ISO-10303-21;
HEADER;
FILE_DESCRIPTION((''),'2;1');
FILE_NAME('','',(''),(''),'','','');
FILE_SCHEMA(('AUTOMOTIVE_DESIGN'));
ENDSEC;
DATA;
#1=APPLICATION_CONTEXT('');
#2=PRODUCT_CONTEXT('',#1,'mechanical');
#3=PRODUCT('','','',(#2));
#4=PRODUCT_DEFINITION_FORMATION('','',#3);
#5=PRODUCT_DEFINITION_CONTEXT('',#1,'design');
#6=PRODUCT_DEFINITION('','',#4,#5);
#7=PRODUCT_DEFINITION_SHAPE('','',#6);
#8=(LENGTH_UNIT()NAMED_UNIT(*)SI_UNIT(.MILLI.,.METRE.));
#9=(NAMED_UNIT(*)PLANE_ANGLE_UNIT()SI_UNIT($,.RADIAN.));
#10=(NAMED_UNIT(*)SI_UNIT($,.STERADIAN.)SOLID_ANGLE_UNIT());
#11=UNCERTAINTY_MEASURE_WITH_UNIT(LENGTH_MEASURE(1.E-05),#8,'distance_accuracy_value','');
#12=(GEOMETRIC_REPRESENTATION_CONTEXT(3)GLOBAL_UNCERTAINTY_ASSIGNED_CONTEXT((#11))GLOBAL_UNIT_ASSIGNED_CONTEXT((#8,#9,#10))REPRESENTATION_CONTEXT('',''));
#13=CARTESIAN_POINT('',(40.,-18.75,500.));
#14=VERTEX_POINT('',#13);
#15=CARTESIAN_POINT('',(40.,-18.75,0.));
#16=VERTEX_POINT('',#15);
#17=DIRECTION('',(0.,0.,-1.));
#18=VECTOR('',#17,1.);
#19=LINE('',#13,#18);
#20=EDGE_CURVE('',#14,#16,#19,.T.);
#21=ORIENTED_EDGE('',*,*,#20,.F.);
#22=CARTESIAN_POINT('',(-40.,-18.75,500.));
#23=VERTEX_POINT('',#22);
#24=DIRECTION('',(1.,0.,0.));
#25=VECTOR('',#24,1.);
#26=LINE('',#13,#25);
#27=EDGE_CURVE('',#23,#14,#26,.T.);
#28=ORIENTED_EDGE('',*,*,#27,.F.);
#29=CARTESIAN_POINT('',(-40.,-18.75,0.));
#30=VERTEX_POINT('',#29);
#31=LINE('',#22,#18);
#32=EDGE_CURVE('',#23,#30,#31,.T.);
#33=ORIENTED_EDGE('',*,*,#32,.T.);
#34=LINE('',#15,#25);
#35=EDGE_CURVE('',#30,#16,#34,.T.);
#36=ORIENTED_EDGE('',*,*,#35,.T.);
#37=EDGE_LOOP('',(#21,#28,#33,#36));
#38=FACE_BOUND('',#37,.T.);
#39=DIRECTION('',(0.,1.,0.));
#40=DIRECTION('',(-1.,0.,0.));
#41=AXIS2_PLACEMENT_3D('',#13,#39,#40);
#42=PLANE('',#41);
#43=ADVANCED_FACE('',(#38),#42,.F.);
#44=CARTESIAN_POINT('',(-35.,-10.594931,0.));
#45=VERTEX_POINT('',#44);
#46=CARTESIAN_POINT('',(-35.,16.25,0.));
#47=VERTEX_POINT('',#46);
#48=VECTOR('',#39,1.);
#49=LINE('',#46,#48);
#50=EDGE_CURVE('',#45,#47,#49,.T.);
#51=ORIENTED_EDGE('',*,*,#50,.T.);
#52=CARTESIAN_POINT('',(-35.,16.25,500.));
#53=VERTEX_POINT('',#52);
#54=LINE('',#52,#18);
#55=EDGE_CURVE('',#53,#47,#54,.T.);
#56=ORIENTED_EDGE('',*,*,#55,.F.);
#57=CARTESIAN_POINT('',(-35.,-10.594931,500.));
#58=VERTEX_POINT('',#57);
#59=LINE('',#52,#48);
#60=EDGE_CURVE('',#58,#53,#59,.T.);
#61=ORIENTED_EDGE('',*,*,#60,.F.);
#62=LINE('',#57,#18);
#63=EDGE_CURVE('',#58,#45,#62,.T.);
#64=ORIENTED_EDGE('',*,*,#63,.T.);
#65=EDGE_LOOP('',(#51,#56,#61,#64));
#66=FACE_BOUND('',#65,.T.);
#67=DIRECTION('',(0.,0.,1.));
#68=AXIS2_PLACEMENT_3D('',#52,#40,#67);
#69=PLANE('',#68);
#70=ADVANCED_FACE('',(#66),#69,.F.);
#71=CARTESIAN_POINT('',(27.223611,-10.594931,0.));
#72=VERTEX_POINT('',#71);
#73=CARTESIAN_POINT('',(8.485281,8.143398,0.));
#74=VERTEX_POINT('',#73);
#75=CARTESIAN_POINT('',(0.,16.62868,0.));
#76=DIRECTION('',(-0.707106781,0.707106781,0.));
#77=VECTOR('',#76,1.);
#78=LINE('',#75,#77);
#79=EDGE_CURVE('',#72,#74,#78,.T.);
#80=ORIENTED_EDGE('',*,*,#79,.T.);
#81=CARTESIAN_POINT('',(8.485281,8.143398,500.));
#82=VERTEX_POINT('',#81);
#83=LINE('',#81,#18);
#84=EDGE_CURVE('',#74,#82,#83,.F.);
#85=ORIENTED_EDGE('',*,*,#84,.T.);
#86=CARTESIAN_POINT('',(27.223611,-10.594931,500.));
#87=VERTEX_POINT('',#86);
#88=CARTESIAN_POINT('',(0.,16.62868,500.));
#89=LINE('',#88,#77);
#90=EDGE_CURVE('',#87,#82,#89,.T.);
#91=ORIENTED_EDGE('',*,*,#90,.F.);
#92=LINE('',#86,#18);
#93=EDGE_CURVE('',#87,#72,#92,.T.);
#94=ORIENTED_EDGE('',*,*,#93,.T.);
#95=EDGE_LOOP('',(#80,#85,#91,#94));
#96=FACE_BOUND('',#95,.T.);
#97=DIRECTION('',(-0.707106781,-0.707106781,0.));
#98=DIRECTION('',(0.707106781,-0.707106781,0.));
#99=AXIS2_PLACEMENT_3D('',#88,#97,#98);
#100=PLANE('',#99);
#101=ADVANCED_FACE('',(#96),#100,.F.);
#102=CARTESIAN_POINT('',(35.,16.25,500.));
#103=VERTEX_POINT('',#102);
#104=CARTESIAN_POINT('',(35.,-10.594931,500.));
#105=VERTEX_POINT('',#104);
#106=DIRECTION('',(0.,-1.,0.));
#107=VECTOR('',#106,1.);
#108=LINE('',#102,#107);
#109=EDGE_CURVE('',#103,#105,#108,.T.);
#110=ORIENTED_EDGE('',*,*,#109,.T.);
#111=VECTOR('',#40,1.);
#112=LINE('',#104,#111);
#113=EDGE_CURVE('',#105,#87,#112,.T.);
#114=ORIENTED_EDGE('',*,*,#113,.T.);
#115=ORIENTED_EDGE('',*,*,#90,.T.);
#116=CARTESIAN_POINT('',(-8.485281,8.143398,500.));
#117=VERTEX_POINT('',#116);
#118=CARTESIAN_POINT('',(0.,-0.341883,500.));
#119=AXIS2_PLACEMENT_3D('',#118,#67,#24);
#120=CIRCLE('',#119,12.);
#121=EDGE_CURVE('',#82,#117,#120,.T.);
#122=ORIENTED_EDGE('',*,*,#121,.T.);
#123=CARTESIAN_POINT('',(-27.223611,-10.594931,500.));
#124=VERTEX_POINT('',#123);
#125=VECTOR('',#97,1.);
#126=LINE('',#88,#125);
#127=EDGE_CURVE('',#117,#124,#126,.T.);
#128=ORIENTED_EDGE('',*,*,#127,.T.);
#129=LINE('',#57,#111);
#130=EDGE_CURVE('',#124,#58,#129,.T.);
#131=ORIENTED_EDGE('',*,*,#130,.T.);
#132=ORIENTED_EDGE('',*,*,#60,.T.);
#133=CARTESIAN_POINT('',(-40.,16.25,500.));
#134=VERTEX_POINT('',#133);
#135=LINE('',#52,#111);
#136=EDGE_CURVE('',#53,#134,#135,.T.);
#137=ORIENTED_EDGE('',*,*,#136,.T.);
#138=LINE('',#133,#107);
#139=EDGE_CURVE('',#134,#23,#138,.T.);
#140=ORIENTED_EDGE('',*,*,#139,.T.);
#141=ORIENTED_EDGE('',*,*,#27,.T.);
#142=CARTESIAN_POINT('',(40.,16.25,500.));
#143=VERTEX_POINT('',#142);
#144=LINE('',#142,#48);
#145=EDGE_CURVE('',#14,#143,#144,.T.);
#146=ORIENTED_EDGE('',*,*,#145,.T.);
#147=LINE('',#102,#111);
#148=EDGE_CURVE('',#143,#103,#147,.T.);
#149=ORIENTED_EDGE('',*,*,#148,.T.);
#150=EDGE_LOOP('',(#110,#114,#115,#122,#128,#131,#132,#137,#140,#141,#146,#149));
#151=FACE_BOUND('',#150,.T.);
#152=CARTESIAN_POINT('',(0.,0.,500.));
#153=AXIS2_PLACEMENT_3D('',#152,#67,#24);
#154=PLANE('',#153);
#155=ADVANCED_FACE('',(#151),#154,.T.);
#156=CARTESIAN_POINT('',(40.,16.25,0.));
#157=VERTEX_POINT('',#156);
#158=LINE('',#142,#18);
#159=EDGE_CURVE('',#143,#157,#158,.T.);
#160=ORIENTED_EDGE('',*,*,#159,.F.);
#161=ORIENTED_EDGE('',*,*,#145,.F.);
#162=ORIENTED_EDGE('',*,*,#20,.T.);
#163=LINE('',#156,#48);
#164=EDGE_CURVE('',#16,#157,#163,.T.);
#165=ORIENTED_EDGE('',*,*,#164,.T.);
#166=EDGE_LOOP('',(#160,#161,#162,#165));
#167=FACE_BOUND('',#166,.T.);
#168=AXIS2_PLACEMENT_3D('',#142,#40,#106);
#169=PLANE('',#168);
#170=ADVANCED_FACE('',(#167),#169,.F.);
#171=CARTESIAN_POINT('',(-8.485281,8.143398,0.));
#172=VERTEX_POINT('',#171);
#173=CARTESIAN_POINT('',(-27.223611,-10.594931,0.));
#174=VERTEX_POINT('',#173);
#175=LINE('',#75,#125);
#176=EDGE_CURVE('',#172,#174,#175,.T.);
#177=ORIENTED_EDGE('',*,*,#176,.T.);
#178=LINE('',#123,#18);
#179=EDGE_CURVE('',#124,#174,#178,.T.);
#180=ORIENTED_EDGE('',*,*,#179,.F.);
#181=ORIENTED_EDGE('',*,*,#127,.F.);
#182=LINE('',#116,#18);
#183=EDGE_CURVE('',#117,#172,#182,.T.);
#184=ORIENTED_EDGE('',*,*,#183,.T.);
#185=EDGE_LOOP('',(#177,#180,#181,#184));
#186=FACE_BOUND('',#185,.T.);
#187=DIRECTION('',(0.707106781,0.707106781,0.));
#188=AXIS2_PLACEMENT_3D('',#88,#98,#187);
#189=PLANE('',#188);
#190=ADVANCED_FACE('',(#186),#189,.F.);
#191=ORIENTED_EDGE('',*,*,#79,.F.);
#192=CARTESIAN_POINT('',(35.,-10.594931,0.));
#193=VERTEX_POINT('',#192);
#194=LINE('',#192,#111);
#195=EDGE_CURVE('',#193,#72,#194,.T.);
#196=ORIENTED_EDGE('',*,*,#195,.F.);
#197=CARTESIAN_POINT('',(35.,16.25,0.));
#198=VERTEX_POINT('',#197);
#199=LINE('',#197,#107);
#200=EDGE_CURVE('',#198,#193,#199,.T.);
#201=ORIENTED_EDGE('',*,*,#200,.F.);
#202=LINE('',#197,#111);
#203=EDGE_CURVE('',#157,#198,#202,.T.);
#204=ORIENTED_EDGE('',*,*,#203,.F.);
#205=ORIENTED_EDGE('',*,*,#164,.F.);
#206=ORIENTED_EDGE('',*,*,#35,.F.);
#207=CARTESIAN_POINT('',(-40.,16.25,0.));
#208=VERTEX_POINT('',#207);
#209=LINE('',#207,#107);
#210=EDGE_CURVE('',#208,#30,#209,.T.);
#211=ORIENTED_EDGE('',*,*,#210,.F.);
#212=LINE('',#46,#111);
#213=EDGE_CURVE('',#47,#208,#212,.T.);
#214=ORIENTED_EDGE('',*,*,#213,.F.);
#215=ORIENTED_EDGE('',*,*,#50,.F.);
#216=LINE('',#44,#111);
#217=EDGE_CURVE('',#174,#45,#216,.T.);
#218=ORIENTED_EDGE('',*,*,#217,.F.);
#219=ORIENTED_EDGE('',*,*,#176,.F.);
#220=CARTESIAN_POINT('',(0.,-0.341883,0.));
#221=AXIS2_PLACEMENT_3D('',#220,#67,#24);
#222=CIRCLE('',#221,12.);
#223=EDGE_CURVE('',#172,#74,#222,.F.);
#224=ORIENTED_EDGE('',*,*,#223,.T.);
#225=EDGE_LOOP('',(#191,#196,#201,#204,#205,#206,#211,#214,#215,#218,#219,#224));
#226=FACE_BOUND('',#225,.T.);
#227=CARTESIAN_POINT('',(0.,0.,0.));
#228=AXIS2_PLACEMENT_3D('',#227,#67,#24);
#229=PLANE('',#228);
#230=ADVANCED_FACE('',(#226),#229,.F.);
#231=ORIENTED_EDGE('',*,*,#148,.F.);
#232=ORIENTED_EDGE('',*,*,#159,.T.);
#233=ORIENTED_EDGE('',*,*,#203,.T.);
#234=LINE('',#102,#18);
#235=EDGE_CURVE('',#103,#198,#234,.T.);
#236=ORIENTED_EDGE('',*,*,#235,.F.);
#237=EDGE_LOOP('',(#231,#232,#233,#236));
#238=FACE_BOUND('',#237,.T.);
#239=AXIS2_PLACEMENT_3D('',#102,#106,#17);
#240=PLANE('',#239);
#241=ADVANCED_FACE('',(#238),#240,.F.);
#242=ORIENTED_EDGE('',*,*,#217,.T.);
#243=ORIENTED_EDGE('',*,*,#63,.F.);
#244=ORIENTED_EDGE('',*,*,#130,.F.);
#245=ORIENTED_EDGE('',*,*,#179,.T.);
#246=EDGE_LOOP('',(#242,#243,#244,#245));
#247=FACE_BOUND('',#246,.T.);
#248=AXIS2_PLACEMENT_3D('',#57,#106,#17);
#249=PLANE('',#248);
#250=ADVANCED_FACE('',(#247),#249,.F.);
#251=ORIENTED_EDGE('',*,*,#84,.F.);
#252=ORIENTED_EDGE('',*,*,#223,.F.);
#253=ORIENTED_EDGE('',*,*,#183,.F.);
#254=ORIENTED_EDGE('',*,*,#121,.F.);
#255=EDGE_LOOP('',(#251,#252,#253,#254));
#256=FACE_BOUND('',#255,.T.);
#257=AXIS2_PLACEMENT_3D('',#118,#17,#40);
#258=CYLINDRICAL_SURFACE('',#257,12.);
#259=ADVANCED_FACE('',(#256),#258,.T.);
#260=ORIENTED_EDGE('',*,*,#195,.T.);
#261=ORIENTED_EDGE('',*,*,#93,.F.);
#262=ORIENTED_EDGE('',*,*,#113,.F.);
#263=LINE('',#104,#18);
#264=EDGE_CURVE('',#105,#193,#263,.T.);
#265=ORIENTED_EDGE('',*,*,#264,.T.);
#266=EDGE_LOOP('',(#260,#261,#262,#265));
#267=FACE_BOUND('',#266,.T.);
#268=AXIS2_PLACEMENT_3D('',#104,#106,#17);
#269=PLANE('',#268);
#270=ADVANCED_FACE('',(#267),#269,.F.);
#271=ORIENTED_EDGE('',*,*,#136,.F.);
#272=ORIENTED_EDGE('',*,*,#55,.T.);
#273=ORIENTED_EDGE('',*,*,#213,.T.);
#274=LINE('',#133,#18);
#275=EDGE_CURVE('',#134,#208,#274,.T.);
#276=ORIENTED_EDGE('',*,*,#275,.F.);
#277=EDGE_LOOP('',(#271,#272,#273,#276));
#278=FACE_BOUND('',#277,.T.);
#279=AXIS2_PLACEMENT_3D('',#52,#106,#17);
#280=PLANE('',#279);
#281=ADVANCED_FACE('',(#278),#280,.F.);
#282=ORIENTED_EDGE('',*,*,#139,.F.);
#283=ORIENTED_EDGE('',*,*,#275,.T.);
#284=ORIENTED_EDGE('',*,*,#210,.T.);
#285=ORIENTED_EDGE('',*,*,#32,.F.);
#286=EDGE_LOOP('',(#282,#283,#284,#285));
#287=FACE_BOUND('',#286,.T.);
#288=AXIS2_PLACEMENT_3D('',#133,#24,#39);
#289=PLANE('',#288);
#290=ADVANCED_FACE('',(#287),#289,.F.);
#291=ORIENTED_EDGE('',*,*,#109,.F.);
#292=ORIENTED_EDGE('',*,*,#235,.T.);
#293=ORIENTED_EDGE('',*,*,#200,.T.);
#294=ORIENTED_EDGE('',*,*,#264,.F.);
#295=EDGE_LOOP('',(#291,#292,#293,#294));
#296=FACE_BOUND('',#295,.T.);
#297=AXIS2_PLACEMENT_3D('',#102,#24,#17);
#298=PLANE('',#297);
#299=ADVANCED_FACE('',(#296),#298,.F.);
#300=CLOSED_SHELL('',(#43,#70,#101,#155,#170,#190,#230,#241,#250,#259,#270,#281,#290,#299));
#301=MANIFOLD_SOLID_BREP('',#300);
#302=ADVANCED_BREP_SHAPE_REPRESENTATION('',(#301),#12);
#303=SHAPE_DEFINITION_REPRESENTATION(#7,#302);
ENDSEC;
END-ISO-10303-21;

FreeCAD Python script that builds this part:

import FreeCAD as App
import Part
import Sketcher


def edges_at(feature, points):
    """Names of the edges that pass closest to the given points."""
    edges = feature.Shape.Edges
    near = lambda p: min(range(len(edges)), key=lambda i: edges[i].distToShape(Part.Vertex(*p))[0])
    return sorted({f"Edge{near(p) + 1}" for p in points})


def add_polygon(sketch, points):
    """Adds a closed chain of lines whose ends are joined by coincident constraints."""
    first, n = sketch.GeometryCount, len(points)
    for a, b in zip(points, points[1:] + points[:1]):
        sketch.addGeometry(Part.LineSegment(App.Vector(*a, 0), App.Vector(*b, 0)), False)
    for i in range(n):
        sketch.addConstraint(Sketcher.Constraint("Coincident", first + i, 2, first + (i + 1) % n, 1))

doc = App.newDocument("Part")
body = doc.addObject("PartDesign::Body", "Body")

# Sketch on XY plane
sketch1 = body.newObject("Sketcher::SketchObject", "Sketch")
sketch1.AttachmentSupport = (doc.getObject("XY_Plane"), [""])
sketch1.MapMode = "FlatFace"
add_polygon(sketch1, [(-40, 16), (-40, -19), (40, -19), (40, 16), (35, 16), (35, -11), (27, -11), (0, 17), (-27, -11), (-35, -11), (-35, 16)])  # lines 0-10
sketch1.addConstraint([
    Sketcher.Constraint("Vertical", 0),
    Sketcher.Constraint("Horizontal", 1),
    Sketcher.Constraint("Vertical", 2),
    Sketcher.Constraint("Horizontal", 3),
    Sketcher.Constraint("Vertical", 4),
    Sketcher.Constraint("Horizontal", 5),
    Sketcher.Constraint("Horizontal", 8),
    Sketcher.Constraint("Vertical", 9),
    Sketcher.Constraint("Horizontal", 10),
    Sketcher.Constraint("Symmetric", 5, 2, 7, 2, -2),
    Sketcher.Constraint("Symmetric", 3, 2, 9, 2, -2),
    Sketcher.Constraint("PointOnObject", 6, 2, -2),
    Sketcher.Constraint("Perpendicular", 6, 7),
    Sketcher.Constraint("Equal", 3, 10),
    Sketcher.Constraint("DistanceX", 1, 1, 1, 2, 80.0),
    Sketcher.Constraint("DistanceX", 3, 2, 3, 1, 5.0),
    Sketcher.Constraint("DistanceY", 0, 2, 0, 1, 35.0),
    Sketcher.Constraint("Distance", 6, 38.5),
    Sketcher.Constraint("DistanceY", 0, 2, -1, 1, 18.75),
    Sketcher.Constraint("DistanceY", 4, 2, 4, 1, 26.844931),
])
pad1 = body.newObject("PartDesign::Pad", "Pad")
pad1.Profile = sketch1
pad1.Length = 500
doc.recompute()

fillet = body.newObject("PartDesign::Fillet", "Fillet")
fillet.Base = (pad1, edges_at(pad1, [(0, 16.629, 250)]))
fillet.Radius = 12

doc.recompute()
